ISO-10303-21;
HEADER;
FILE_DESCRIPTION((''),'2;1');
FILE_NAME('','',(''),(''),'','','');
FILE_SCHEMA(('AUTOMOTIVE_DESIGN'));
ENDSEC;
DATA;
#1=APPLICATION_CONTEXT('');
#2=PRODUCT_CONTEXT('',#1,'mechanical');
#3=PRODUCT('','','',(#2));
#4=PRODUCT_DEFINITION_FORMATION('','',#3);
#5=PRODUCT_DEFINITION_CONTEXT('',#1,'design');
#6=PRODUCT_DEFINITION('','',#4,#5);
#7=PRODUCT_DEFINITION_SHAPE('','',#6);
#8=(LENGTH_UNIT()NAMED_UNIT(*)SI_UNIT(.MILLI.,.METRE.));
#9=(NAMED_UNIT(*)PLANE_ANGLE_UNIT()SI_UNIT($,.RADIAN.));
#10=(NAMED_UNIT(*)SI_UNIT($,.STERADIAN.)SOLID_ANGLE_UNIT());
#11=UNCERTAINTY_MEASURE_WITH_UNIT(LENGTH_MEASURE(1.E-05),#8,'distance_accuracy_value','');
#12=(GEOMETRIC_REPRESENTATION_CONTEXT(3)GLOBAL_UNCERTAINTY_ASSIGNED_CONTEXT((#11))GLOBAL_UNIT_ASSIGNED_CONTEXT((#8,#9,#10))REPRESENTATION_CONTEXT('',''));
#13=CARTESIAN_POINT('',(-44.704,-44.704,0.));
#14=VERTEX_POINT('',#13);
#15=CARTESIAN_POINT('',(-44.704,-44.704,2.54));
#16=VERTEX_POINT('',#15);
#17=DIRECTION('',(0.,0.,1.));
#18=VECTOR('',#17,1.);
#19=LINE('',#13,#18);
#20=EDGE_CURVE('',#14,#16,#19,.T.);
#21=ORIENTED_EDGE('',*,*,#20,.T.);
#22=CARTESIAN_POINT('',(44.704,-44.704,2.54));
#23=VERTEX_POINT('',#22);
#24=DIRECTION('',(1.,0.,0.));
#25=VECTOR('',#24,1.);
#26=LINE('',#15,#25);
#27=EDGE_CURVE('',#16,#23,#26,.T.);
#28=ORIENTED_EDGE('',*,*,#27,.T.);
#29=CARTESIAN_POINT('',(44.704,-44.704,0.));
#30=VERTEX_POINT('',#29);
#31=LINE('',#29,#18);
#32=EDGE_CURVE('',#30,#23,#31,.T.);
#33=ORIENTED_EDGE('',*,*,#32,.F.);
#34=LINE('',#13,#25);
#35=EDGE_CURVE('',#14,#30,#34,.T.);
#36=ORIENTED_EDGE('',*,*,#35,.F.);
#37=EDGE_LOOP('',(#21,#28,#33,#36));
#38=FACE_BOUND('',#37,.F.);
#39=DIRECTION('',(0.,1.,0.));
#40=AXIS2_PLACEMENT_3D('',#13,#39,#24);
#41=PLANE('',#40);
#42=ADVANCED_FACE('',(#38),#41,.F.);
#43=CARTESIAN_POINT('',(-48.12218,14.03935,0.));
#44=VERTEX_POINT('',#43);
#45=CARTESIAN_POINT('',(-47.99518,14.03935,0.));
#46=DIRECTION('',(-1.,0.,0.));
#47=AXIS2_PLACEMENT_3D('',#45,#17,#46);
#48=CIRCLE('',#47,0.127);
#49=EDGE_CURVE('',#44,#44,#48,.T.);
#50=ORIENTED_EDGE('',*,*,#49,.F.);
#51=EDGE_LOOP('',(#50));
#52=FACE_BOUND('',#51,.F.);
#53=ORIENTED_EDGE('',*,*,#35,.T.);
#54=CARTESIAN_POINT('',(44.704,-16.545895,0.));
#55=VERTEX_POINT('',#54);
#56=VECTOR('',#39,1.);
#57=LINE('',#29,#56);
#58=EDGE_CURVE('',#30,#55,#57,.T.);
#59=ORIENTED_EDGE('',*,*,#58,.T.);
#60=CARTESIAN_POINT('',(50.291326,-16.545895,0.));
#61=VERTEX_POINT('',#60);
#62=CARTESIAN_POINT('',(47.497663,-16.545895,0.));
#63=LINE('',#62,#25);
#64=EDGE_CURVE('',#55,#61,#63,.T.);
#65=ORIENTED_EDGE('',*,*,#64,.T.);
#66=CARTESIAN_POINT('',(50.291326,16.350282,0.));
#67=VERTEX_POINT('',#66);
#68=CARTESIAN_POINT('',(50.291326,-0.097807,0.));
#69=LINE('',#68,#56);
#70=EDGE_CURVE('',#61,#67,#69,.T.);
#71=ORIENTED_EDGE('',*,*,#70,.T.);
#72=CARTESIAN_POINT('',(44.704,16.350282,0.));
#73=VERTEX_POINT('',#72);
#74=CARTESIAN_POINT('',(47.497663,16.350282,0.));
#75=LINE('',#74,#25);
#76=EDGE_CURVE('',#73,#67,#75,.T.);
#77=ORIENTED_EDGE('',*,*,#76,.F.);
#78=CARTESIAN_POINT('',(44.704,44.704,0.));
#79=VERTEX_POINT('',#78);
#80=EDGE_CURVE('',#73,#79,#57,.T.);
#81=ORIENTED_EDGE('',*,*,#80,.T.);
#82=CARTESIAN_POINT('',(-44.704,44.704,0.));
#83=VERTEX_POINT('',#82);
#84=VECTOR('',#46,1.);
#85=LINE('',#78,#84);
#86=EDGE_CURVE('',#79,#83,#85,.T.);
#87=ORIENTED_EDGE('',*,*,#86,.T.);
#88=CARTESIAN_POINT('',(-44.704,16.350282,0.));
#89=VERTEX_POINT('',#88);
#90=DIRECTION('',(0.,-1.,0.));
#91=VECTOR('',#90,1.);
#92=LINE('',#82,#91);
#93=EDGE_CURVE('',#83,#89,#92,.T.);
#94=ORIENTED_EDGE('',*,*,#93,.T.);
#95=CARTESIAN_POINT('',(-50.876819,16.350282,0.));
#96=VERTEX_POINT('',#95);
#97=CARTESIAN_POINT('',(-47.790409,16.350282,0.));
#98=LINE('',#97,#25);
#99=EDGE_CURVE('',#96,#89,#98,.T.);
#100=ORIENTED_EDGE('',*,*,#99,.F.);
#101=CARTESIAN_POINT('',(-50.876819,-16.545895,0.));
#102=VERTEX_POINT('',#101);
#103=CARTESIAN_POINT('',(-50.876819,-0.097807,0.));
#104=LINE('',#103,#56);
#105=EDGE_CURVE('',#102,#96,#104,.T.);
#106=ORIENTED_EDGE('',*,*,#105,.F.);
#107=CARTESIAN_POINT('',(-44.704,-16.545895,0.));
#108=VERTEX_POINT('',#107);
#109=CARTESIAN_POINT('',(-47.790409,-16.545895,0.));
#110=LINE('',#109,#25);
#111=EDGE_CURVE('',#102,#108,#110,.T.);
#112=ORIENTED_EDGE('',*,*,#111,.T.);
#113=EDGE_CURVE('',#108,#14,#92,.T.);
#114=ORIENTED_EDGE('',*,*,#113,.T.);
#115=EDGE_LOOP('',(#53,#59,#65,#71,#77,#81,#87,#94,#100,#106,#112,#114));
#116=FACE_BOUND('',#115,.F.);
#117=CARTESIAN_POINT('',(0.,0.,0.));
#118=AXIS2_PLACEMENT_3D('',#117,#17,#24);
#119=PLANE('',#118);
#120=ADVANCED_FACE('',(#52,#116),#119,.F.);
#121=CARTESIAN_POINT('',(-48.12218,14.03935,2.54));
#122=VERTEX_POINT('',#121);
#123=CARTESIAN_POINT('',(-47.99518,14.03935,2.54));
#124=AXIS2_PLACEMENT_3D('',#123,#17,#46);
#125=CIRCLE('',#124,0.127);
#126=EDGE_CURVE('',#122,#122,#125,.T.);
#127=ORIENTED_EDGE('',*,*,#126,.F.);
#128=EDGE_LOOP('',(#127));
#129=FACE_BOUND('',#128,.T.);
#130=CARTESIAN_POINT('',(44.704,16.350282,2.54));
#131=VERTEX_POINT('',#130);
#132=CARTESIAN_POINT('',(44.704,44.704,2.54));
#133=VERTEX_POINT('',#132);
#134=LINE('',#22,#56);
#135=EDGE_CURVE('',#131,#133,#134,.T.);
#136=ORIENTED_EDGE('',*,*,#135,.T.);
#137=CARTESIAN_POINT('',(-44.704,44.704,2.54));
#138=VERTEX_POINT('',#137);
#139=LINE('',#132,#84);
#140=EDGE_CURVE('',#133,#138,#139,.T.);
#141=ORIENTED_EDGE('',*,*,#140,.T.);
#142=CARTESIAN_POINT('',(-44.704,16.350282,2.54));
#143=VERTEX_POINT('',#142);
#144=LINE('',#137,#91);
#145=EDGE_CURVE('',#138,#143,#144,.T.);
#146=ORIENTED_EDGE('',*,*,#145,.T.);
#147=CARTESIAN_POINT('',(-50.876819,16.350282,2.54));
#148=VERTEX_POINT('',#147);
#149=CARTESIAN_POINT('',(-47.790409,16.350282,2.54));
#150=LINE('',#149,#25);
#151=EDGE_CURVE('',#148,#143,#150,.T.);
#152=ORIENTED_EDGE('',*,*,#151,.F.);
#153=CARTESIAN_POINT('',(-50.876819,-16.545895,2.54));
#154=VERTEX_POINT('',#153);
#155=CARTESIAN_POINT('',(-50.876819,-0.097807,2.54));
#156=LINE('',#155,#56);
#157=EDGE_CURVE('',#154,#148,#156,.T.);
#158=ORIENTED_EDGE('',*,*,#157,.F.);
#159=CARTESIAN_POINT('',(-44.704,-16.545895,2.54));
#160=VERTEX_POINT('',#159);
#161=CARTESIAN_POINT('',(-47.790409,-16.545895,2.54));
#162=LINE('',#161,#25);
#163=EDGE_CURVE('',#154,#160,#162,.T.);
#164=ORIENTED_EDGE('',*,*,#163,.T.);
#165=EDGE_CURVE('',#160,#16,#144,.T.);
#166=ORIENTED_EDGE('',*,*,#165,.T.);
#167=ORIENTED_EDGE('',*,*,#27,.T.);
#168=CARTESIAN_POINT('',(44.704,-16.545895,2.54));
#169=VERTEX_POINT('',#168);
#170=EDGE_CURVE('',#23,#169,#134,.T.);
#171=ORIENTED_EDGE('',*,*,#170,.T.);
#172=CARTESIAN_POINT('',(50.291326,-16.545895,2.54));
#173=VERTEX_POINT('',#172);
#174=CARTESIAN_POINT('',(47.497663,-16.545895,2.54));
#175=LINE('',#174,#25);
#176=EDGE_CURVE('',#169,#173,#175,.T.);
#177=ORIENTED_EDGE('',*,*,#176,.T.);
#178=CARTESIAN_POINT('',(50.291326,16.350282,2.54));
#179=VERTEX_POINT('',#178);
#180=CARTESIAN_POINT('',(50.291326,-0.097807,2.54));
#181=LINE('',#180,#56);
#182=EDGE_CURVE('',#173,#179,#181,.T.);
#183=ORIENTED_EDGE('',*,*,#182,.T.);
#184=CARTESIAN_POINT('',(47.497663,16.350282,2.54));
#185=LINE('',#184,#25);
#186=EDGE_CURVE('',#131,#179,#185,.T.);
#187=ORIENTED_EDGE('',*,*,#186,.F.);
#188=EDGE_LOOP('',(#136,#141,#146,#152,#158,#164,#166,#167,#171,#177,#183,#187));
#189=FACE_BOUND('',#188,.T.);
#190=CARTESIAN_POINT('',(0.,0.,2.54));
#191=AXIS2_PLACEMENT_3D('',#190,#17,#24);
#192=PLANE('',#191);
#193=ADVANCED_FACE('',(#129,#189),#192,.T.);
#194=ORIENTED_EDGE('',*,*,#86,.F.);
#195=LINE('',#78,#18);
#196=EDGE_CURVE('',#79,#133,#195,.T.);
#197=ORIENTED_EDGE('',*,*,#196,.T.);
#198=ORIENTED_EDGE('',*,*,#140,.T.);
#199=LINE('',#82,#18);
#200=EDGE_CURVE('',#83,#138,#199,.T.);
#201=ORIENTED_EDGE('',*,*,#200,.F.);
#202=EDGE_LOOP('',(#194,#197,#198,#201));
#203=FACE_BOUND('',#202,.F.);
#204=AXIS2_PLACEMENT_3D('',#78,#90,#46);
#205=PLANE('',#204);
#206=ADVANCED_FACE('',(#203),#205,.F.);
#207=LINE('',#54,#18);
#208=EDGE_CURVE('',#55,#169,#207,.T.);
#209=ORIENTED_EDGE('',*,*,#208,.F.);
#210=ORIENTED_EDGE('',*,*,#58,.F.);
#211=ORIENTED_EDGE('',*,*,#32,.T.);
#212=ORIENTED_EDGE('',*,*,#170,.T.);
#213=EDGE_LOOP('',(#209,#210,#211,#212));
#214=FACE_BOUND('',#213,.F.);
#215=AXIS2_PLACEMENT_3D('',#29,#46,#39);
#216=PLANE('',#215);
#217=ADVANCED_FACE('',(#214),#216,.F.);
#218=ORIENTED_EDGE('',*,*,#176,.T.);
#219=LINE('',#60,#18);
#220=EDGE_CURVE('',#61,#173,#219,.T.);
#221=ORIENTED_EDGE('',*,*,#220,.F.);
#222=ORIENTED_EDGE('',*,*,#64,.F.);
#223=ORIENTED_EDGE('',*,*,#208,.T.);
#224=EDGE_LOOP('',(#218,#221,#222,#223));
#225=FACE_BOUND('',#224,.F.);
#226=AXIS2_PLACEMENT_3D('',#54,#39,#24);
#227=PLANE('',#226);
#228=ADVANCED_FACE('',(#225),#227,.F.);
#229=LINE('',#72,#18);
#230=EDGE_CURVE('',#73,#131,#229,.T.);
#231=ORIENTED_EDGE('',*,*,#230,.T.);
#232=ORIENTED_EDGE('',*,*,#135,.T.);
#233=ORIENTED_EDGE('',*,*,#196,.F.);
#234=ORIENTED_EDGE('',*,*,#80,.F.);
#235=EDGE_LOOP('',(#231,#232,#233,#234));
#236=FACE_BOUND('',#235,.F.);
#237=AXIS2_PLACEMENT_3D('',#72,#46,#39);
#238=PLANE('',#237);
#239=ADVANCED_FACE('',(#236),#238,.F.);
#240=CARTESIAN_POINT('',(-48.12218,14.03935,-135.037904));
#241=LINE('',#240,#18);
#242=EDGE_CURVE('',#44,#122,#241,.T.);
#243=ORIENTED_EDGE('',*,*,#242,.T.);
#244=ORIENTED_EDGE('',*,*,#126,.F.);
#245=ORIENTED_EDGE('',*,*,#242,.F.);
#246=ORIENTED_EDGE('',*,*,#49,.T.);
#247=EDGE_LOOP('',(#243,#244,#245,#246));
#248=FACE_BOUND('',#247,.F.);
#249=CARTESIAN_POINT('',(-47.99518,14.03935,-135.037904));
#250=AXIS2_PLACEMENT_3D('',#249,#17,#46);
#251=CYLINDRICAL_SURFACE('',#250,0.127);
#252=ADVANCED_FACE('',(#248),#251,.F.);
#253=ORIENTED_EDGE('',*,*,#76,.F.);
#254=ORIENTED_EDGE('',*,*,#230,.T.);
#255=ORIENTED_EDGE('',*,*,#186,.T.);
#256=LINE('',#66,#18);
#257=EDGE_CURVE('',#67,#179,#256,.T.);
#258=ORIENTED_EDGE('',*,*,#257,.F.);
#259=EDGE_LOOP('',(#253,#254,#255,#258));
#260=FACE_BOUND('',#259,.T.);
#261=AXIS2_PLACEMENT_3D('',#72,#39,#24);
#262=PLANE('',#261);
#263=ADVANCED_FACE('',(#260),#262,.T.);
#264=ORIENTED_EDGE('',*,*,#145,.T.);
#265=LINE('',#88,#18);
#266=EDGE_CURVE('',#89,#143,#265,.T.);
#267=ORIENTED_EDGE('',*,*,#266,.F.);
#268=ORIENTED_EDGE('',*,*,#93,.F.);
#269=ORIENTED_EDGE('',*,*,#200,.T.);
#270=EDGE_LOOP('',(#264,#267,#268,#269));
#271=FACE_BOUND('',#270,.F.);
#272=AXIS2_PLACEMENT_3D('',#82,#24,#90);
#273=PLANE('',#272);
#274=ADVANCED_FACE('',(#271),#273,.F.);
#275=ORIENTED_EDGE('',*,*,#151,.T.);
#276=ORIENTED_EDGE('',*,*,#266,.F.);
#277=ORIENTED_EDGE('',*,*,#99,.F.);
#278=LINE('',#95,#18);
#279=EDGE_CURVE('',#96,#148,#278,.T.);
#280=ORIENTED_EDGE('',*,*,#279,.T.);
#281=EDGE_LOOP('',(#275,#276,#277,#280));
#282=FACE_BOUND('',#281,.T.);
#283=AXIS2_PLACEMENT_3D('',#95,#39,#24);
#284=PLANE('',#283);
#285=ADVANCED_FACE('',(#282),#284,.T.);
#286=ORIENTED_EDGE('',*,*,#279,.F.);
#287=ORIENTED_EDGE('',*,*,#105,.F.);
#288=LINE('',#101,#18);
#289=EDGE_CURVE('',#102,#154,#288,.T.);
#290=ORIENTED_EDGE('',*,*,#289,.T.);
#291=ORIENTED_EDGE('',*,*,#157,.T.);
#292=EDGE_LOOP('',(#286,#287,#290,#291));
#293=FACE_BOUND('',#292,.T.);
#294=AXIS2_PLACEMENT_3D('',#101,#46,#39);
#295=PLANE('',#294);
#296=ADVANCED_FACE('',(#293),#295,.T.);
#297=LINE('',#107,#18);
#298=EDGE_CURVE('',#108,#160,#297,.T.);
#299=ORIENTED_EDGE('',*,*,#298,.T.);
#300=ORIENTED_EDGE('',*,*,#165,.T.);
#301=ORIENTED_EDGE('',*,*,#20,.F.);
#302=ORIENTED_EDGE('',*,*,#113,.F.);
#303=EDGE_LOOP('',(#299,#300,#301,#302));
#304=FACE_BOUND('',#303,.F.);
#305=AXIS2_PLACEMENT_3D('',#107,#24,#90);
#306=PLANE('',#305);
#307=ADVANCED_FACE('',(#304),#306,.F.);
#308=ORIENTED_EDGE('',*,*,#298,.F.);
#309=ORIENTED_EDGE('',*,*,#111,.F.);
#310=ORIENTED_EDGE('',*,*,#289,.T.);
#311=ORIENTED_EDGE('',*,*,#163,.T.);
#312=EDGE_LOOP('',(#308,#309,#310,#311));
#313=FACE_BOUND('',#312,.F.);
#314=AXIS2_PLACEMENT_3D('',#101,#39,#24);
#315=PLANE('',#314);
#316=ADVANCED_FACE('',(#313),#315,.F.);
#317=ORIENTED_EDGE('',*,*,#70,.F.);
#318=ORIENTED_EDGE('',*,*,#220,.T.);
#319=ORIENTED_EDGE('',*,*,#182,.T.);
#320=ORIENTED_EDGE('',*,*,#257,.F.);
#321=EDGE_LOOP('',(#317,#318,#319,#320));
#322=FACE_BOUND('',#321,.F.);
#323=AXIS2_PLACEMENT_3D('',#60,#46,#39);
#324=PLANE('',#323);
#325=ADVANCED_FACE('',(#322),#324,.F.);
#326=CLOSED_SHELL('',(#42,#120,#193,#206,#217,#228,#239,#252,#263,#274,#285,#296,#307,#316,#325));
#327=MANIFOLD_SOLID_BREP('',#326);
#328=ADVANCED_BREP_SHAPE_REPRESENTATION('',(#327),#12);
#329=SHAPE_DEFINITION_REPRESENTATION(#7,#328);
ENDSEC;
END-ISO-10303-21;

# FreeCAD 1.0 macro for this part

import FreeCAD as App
import Part
import Sketcher
Q = App.Units.Quantity


def add_polygon(sketch, points):
    """Adds a closed chain of lines whose ends are joined by coincident constraints."""
    first, n = sketch.GeometryCount, len(points)
    for a, b in zip(points, points[1:] + points[:1]):
        sketch.addGeometry(Part.LineSegment(App.Vector(*a, 0), App.Vector(*b, 0)), False)
    for i in range(n):
        sketch.addConstraint(Sketcher.Constraint("Coincident", first + i, 2, first + (i + 1) % n, 1))

doc = App.newDocument("Part")
body = doc.addObject("PartDesign::Body", "Body")

# Sketch on XY plane
sketch1 = body.newObject("Sketcher::SketchObject", "Sketch")
sketch1.AttachmentSupport = (doc.getObject("XY_Plane"), [""])
sketch1.MapMode = "FlatFace"
add_polygon(sketch1, [(45, 45), (-45, 45), (-45, 16), (-51, 16), (-51, -17), (-45, -17), (-45, -45), (45, -45), (45, -17), (50, -17), (50, 16), (45, 16)])  # lines 0-11
sketch1.addConstraint([
    Sketcher.Constraint("Horizontal", 0),
    Sketcher.Constraint("Vertical", 1),
    Sketcher.Constraint("Horizontal", 2),
    Sketcher.Constraint("Vertical", 3),
    Sketcher.Constraint("Horizontal", 4),
    Sketcher.Constraint("Vertical", 5),
    Sketcher.Constraint("Horizontal", 6),
    Sketcher.Constraint("Vertical", 7),
    Sketcher.Constraint("Horizontal", 8),
    Sketcher.Constraint("Vertical", 9),
    Sketcher.Constraint("Horizontal", 10),
    Sketcher.Constraint("Vertical", 11),
    Sketcher.Constraint("Symmetric", 0, 2, 6, 2, -1, 1),
    Sketcher.Constraint("Symmetric", 4, 2, 7, 2, -2),
    Sketcher.Constraint("Symmetric", 1, 2, 10, 2, -2),
    Sketcher.Constraint("DistanceX", 0, 2, 0, 1, Q("3.52 in")),
    Sketcher.Constraint("DistanceY", -1, 1, 0, 2, Q("1.76 in")),
    Sketcher.Constraint("DistanceX", 2, 2, 2, 1, Q("6.172819 mm")),
    Sketcher.Constraint("DistanceX", 8, 1, 8, 2, Q("5.587326 mm")),
    Sketcher.Constraint("DistanceY", 1, 2, 1, 1, Q("28.353718 mm")),
    Sketcher.Constraint("DistanceY", 3, 2, 3, 1, Q("32.896178 mm")),
])
pad1 = body.newObject("PartDesign::Pad", "Pad")
pad1.Profile = sketch1
pad1.Length = Q("0.1 in")

# Sketch on XY plane
sketch2 = body.newObject("Sketcher::SketchObject", "Sketch001")
sketch2.AttachmentSupport = (doc.getObject("XY_Plane"), [""])
sketch2.MapMode = "FlatFace"
sketch2.addGeometry(Part.Circle(App.Vector(-48, 14.04, 0), App.Vector(0, 0, 1), 0.13), False)
sketch2.addConstraint([
    Sketcher.Constraint("Diameter", 0, Q("0.01 in")),
    Sketcher.Constraint("DistanceX", 0, 3, -1, 1, Q("47.99518 mm")),
    Sketcher.Constraint("DistanceY", -1, 1, 0, 3, Q("14.03935 mm")),
])
doc.recompute()
hole = body.newObject("PartDesign::Hole", "Hole")
hole.Profile = sketch2
hole.ThreadType = "None"
hole.Diameter = Q("0.01 in")
hole.DepthType = "ThroughAll"
hole.Reversed = True

doc.recompute()
